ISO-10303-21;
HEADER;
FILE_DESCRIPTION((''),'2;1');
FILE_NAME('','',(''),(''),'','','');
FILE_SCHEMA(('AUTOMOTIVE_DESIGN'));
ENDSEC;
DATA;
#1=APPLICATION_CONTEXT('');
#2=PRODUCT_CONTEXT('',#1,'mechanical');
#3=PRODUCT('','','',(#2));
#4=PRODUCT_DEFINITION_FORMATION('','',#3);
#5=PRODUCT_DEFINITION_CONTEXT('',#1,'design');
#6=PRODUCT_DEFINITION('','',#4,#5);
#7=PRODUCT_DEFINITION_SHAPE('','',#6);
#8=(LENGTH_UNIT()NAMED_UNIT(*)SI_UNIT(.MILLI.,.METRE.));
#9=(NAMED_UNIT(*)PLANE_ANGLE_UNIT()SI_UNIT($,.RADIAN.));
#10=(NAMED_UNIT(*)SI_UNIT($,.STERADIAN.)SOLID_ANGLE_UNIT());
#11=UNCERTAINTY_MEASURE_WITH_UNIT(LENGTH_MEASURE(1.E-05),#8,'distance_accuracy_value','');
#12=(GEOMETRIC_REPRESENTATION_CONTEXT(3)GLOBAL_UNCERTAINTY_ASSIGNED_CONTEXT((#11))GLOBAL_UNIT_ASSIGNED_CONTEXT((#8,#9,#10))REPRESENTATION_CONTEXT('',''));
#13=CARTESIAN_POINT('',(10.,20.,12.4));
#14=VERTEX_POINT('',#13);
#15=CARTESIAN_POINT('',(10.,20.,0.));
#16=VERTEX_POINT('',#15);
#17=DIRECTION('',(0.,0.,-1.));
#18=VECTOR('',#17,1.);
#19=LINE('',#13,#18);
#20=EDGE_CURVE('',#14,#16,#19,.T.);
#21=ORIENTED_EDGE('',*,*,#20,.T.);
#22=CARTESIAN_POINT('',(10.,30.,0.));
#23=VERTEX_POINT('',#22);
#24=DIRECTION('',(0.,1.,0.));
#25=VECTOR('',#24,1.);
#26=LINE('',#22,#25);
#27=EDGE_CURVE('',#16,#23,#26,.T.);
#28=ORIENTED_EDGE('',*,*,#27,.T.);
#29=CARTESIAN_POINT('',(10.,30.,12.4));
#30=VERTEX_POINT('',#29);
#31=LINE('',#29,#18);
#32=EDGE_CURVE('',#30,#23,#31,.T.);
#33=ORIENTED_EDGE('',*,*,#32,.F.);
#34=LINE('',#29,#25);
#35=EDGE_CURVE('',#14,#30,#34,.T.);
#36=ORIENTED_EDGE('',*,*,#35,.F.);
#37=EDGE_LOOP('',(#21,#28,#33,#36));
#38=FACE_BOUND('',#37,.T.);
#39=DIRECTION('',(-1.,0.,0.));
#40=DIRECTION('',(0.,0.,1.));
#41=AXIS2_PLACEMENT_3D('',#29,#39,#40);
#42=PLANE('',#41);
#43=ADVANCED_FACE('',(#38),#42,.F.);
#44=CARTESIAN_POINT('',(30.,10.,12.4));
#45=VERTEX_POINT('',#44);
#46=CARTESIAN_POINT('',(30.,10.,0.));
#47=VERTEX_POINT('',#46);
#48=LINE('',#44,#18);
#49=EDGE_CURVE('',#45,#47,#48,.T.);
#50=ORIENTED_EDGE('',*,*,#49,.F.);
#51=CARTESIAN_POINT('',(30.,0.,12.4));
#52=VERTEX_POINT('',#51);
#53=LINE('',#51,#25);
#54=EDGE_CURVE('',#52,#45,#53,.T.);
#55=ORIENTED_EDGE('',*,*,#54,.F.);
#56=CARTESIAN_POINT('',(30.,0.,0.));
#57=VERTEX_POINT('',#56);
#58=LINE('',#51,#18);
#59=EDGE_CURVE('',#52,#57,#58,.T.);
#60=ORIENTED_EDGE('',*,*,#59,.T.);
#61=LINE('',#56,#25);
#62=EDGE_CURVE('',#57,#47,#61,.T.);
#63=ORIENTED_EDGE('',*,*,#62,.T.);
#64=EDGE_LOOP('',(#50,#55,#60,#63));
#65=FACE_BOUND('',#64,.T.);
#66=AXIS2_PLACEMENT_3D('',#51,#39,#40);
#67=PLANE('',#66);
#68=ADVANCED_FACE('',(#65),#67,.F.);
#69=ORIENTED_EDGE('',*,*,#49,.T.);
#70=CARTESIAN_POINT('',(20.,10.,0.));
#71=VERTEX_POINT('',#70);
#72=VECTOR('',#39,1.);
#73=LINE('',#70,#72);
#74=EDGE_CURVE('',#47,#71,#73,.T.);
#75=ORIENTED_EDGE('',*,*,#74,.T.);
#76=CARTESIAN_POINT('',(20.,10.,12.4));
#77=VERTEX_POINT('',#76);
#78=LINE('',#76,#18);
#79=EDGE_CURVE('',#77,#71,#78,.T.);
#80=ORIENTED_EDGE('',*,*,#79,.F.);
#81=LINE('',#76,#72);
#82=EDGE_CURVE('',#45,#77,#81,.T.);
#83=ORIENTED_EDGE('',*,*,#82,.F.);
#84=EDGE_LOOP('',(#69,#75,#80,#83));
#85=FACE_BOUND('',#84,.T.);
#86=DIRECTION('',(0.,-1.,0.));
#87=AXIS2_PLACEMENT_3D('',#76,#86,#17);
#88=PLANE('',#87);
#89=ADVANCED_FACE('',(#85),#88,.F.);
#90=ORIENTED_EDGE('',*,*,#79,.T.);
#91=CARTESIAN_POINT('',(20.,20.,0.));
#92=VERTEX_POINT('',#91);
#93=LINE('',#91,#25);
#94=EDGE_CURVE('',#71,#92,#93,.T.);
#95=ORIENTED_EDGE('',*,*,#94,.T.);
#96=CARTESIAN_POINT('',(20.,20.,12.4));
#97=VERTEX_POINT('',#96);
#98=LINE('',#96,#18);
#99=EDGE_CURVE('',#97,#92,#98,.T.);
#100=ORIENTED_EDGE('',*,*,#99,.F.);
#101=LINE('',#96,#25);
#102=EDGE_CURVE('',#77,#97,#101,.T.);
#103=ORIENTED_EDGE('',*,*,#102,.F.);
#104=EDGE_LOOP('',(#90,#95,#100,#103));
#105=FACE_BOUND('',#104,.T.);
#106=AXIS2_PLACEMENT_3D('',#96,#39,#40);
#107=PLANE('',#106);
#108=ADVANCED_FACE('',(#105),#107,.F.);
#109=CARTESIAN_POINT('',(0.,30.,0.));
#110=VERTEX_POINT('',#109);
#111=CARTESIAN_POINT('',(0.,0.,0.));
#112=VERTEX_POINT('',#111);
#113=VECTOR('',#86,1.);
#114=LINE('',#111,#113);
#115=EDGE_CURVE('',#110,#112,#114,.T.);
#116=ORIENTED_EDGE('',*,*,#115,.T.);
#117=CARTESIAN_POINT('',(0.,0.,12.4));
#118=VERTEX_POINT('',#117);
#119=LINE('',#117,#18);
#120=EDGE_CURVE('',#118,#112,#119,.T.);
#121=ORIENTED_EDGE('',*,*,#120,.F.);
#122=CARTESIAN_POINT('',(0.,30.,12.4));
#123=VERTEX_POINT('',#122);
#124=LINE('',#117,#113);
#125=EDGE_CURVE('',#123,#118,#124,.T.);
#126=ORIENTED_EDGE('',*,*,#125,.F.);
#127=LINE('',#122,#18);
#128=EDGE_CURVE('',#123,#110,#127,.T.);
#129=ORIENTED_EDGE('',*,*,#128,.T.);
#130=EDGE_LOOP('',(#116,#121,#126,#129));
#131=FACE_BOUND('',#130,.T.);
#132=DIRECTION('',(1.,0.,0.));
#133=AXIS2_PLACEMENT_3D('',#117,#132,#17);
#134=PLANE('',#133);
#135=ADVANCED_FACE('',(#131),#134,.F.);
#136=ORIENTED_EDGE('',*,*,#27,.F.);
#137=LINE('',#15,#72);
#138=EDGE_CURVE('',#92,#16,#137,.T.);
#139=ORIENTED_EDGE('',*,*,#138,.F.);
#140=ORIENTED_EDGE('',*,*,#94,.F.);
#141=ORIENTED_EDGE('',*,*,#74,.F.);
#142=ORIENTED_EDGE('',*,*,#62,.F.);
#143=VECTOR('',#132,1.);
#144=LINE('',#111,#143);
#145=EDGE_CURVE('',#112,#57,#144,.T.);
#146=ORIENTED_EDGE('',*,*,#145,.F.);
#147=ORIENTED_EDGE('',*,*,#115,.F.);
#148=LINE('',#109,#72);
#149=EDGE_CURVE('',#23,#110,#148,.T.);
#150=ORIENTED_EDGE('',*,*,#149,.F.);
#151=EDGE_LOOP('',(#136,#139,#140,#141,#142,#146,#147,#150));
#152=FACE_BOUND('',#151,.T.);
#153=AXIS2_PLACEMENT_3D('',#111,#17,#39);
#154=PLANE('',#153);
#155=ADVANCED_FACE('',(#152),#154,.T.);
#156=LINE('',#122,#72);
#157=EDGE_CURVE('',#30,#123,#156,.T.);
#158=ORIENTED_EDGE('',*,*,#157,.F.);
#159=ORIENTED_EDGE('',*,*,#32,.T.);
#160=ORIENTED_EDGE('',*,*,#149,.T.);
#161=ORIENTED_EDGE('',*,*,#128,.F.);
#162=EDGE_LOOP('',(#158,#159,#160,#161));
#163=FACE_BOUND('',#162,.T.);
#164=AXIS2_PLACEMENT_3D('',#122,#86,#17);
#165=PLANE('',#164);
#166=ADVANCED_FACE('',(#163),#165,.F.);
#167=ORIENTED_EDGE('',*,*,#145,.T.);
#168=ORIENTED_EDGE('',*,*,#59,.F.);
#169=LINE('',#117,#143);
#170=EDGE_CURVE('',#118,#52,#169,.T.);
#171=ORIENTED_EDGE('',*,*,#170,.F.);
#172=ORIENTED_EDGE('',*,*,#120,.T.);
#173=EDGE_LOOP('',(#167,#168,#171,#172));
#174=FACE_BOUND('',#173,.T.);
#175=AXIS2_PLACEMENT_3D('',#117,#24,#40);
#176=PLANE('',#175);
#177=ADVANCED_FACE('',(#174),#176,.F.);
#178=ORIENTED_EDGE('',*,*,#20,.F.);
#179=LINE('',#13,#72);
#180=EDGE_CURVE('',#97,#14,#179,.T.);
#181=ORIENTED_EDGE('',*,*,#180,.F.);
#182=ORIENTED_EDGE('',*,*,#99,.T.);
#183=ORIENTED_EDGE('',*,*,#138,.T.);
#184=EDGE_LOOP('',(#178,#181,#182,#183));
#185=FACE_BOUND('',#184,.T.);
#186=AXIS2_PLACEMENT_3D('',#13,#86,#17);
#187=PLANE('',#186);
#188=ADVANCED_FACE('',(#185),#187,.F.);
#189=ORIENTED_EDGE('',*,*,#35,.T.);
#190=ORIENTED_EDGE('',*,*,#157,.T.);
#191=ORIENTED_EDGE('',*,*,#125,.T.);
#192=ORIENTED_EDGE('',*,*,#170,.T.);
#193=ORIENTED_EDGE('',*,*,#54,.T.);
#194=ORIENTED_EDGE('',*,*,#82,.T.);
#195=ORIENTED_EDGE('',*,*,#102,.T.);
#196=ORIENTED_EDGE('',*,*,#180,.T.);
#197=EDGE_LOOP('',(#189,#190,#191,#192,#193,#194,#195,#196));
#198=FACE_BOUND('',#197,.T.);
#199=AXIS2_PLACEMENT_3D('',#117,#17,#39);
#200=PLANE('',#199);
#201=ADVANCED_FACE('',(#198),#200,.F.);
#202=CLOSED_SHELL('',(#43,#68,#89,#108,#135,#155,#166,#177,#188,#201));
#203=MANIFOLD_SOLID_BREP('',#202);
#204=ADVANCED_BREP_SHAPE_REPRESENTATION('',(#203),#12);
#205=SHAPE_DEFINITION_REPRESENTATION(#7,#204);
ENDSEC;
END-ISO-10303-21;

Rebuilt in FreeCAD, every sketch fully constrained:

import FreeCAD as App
import Part
import Sketcher

V = App.Vector


def add_polygon(sketch, points):
    """Adds a closed chain of lines whose ends are joined by coincident constraints."""
    first, n = sketch.GeometryCount, len(points)
    for a, b in zip(points, points[1:] + points[:1]):
        sketch.addGeometry(Part.LineSegment(App.Vector(*a, 0), App.Vector(*b, 0)), False)
    for i in range(n):
        sketch.addConstraint(Sketcher.Constraint("Coincident", first + i, 2, first + (i + 1) % n, 1))

doc = App.newDocument("Part")
params = doc.addObject("Spreadsheet::Sheet", "Params")
for row, (alias, value) in enumerate([
    ("sketch1_width", "30 mm"),
    ("pad1_length", "12.4 mm"),
], start=1):
    params.set(f"A{row}", alias)
    params.set(f"B{row}", "=" + value)
    params.setAlias(f"B{row}", alias)

body = doc.addObject("PartDesign::Body", "Body")

sketch1 = body.newObject("Sketcher::SketchObject", "Sketch")
sketch1.AttachmentSupport = (doc.getObject("XY_Plane"), [""])
sketch1.MapMode = "FlatFace"
add_polygon(sketch1, [(0, 0), (30, 0), (30, 10), (20, 10), (20, 20), (10, 20), (10, 30), (0, 30)])
sketch1.addConstraint(Sketcher.Constraint("Horizontal", 0))
sketch1.addConstraint(Sketcher.Constraint("Vertical", 1))
sketch1.addConstraint(Sketcher.Constraint("Horizontal", 2))
sketch1.addConstraint(Sketcher.Constraint("Vertical", 3))
sketch1.addConstraint(Sketcher.Constraint("Horizontal", 4))
sketch1.addConstraint(Sketcher.Constraint("Vertical", 5))
sketch1.addConstraint(Sketcher.Constraint("Horizontal", 6))
sketch1.addConstraint(Sketcher.Constraint("Vertical", 7))
sketch1.addConstraint(Sketcher.Constraint("Coincident", 7, 2, -1, 1))
sketch1.addConstraint(Sketcher.Constraint("Equal", 2, 4))
sketch1.addConstraint(Sketcher.Constraint("Equal", 4, 6))
sketch1.addConstraint(Sketcher.Constraint("Equal", 6, 1))
sketch1.addConstraint(Sketcher.Constraint("Equal", 1, 3))
sketch1.addConstraint(Sketcher.Constraint("Equal", 3, 5))
sketch1.addConstraint(Sketcher.Constraint("DistanceX", 0, 1, 0, 2, 30.0))
sketch1.setExpression("Constraints[22]", "Params.sketch1_width")
pad1 = body.newObject("PartDesign::Pad", "Pad")
pad1.Profile = sketch1
pad1.setExpression("Length", "Params.pad1_length")

doc.recompute()
